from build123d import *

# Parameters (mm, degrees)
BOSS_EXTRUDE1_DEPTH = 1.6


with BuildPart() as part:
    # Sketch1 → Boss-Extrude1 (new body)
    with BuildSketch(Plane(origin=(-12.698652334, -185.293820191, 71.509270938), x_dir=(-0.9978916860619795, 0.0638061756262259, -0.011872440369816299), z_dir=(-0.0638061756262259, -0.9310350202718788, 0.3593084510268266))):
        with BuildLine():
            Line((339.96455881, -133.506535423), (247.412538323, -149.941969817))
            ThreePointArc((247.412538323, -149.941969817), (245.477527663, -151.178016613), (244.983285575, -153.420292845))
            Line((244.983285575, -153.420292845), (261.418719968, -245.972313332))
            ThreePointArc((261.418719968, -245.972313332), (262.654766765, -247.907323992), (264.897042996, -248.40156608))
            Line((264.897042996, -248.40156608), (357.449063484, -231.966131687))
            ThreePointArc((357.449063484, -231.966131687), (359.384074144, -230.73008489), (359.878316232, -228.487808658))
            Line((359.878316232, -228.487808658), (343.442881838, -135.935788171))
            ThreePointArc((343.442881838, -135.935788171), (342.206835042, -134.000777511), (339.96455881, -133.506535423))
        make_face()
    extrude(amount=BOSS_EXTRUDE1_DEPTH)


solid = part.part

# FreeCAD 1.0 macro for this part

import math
import FreeCAD as App
import Part
import Sketcher

V = App.Vector

doc = App.newDocument("Part")
body = doc.addObject("PartDesign::Body", "Body")

# Sketch on an angled plane
sketch1 = body.newObject("Sketcher::SketchObject", "Sketch")
sketch1.Placement = App.Placement(V(-12.698652, -185.29382, 71.509271), App.Rotation(V(-0.997891686, 0.063806176, -0.01187244), V(-0.011872441, -0.359308451, -0.933143334), V(-0.063806176, -0.93103502, 0.359308451), "ZXY"))
sketch1.addGeometry([
    Part.LineSegment(V(339.964559, -133.506535, 0), V(247.412538, -149.94197, 0)),  # 0
    Part.ArcOfCircle(Part.Circle(V(247.937073, -152.895758, 0), V(0, 0, 1), 3), math.radians(100.069641), math.radians(190.069641)),  # 1
    Part.LineSegment(V(244.983286, -153.420293, 0), V(261.41872, -245.972313, 0)),  # 2
    Part.ArcOfCircle(Part.Circle(V(264.372508, -245.447778, 0), V(0, 0, 1), 3), math.radians(-169.930359), math.radians(-79.930359)),  # 3
    Part.LineSegment(V(264.897043, -248.401566, 0), V(357.449063, -231.966132, 0)),  # 4
    Part.ArcOfCircle(Part.Circle(V(356.924528, -229.012344, 0), V(0, 0, 1), 3), math.radians(-79.930359), math.radians(10.069641)),  # 5
    Part.LineSegment(V(359.878316, -228.487809, 0), V(343.442882, -135.935788, 0)),  # 6
    Part.ArcOfCircle(Part.Circle(V(340.489094, -136.460323, 0), V(0, 0, 1), 3), math.radians(10.069641), math.radians(100.069641)),  # 7
], False)
sketch1.addConstraint([
    Sketcher.Constraint("Tangent", 0, 2, 1, 1),
    Sketcher.Constraint("Tangent", 1, 2, 2, 1),
    Sketcher.Constraint("Tangent", 2, 2, 3, 1),
    Sketcher.Constraint("Tangent", 3, 2, 4, 1),
    Sketcher.Constraint("Tangent", 4, 2, 5, 1),
    Sketcher.Constraint("Tangent", 5, 2, 6, 1),
    Sketcher.Constraint("Tangent", 6, 2, 7, 1),
    Sketcher.Constraint("Tangent", 7, 2, 0, 1),
    Sketcher.Constraint("Equal", 1, 3),
    Sketcher.Constraint("Equal", 3, 5),
    Sketcher.Constraint("Equal", 5, 7),
    Sketcher.Constraint("Perpendicular", 0, 2),
    Sketcher.Constraint("Perpendicular", 2, 4),
    Sketcher.Constraint("Perpendicular", 4, 6),
    Sketcher.Constraint("Equal", 0, 2),
    Sketcher.Constraint("Radius", 1, 3.0),
    Sketcher.Constraint("Distance", 0, 94.0),
    Sketcher.Constraint("DistanceY", 3, 3, -1, 1, 245.447778),
    Sketcher.Constraint("DistanceX", -1, 1, 5, 3, 356.924528),
    Sketcher.Constraint("DistanceX", -1, 1, 0, 2, 247.412538),
])
pad1 = body.newObject("PartDesign::Pad", "Pad")
pad1.Profile = sketch1
pad1.Length = 1.6

doc.recompute()
